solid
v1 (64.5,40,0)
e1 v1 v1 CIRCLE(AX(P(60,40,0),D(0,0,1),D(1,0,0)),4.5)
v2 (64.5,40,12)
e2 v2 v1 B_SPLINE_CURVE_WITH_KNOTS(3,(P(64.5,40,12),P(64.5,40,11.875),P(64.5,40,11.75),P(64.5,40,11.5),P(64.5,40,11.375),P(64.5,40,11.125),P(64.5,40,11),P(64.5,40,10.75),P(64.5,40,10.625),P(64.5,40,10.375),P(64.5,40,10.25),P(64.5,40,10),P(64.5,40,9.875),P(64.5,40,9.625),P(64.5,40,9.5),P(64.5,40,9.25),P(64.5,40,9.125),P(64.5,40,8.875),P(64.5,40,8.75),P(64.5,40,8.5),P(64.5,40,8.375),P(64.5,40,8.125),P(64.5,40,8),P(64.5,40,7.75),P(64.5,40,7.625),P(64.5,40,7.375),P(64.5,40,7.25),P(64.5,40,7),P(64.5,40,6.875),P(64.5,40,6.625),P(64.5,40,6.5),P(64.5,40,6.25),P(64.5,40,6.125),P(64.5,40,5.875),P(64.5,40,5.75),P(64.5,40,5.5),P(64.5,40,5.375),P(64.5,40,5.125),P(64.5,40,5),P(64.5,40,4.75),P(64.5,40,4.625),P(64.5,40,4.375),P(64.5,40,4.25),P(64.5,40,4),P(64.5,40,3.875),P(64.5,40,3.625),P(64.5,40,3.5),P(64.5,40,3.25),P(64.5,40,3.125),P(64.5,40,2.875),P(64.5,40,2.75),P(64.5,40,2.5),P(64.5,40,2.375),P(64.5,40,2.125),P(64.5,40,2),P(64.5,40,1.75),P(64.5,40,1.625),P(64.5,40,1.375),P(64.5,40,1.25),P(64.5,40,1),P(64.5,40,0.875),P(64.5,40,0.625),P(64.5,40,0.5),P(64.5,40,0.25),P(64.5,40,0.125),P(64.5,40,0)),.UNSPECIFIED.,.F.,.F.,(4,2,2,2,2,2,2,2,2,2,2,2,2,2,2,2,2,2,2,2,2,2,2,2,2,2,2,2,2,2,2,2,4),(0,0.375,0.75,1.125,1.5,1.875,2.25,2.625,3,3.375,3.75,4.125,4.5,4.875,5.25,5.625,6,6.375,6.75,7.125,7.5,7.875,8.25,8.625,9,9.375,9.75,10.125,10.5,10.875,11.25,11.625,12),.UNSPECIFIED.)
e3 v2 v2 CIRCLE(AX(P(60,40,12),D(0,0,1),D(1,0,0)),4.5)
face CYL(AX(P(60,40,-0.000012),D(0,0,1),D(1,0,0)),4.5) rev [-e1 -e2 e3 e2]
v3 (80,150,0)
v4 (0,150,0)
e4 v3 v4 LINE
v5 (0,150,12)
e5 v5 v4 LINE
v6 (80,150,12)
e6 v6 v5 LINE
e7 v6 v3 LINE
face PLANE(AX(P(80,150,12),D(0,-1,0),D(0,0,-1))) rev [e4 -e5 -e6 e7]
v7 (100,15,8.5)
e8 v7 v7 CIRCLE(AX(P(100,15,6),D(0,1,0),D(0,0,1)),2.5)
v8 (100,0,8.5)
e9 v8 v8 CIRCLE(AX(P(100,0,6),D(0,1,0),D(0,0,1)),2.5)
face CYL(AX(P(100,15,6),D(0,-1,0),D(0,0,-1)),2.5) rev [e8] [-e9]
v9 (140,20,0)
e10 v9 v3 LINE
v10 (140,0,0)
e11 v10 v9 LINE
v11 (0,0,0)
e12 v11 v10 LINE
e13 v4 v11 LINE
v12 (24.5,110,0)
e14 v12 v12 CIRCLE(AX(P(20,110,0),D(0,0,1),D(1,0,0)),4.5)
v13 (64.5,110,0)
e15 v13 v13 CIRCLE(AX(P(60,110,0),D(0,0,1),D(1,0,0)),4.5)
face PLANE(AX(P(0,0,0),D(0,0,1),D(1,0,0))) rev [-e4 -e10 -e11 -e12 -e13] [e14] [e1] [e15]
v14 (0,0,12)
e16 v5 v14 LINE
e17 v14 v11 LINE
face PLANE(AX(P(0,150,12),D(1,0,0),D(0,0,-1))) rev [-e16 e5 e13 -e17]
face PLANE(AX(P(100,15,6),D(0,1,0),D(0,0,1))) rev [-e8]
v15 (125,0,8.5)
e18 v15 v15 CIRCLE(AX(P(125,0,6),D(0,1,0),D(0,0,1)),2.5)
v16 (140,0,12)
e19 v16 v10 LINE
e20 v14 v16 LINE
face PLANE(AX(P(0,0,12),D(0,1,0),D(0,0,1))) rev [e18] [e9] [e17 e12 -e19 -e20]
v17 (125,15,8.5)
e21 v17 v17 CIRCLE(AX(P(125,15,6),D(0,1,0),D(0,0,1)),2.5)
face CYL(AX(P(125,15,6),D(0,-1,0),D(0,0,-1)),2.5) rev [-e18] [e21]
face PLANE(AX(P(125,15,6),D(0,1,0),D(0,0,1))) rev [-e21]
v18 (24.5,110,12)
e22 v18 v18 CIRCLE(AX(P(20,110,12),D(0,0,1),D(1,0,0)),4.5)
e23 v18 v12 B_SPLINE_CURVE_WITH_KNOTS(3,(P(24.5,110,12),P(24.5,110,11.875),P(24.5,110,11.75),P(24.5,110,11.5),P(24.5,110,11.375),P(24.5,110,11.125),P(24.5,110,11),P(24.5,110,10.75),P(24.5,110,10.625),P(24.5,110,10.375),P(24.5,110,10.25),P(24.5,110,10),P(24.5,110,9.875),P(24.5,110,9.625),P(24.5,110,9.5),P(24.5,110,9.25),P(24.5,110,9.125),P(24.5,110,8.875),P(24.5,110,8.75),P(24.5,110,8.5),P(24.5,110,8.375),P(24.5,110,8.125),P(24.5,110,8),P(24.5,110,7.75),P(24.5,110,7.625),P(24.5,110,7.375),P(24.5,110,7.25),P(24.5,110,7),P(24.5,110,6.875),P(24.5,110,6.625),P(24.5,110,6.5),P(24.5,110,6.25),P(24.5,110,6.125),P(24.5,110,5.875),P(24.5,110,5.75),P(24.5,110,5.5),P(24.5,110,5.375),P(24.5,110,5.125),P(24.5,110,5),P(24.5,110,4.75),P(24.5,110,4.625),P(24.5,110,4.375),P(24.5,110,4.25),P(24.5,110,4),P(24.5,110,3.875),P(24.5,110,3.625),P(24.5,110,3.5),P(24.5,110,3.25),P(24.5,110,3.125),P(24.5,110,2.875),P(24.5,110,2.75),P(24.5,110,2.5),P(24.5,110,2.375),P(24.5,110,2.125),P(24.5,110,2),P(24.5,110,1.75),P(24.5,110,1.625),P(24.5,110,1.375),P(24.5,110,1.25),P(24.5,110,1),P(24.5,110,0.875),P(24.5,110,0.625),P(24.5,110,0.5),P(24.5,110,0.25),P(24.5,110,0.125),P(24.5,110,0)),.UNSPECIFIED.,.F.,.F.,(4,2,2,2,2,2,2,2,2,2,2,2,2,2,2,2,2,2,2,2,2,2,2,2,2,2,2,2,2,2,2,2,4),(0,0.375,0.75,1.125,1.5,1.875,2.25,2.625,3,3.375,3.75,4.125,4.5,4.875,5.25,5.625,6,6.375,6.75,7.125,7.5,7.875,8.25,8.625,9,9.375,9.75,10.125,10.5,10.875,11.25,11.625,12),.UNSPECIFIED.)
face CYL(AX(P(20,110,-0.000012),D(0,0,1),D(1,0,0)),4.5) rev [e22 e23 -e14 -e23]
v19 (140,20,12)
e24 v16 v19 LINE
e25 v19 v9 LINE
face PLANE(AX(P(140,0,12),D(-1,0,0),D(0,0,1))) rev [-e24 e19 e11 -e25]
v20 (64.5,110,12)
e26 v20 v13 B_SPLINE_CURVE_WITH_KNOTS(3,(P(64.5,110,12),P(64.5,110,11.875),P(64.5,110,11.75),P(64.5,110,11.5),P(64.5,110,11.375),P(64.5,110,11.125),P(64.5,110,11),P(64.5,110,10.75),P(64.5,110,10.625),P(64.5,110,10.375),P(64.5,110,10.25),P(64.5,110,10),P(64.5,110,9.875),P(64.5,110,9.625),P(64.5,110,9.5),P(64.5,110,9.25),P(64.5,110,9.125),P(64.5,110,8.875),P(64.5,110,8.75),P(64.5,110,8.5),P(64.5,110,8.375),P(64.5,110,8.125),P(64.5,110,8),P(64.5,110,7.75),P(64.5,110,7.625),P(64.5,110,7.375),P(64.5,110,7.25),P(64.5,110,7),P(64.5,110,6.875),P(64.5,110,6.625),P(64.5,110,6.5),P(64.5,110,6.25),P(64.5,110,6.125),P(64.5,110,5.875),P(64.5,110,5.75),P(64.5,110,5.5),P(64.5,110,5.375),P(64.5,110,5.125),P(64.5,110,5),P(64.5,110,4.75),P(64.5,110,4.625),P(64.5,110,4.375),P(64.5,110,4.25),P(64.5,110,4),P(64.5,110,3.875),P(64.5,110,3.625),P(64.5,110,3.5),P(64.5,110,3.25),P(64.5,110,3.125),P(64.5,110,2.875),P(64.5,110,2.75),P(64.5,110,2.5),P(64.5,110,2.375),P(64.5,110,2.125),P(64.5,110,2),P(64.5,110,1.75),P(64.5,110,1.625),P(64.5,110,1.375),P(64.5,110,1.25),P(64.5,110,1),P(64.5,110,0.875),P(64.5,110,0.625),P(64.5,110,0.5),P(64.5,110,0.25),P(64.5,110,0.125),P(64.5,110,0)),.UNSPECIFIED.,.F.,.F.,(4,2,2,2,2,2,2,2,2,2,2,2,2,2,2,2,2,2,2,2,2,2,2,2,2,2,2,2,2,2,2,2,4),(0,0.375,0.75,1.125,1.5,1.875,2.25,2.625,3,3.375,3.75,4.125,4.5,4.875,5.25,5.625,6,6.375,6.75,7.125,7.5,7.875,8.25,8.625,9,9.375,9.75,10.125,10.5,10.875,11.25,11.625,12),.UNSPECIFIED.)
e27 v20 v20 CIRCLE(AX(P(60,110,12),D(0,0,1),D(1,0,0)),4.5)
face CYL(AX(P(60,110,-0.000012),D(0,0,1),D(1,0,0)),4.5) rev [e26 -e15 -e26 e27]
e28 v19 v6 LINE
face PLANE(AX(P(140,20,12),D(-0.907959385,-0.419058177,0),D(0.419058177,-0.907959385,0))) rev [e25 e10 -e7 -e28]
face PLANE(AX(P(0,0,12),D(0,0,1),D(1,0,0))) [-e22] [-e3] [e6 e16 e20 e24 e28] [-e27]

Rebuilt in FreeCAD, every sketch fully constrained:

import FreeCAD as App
import Part
import Sketcher
Q = App.Units.Quantity


def add_polygon(sketch, points):
    """Adds a closed chain of lines whose ends are joined by coincident constraints."""
    first, n = sketch.GeometryCount, len(points)
    for a, b in zip(points, points[1:] + points[:1]):
        sketch.addGeometry(Part.LineSegment(App.Vector(*a, 0), App.Vector(*b, 0)), False)
    for i in range(n):
        sketch.addConstraint(Sketcher.Constraint("Coincident", first + i, 2, first + (i + 1) % n, 1))

doc = App.newDocument("Part")
params = doc.addObject("Spreadsheet::Sheet", "Params")
for row, (alias, value) in enumerate([
    ("sketch1_width", "140 mm"),
    ("sketch1_width2", "80 mm"),
    ("sketch1_height", "20 mm"),
    ("sketch1_height2", "150 mm"),
    ("pad1_length", "12 mm"),
    ("sketch2_diameter", "9 mm"),
    ("sketch3_diameter", "5 mm"),
    ("pocket2_length", "15 mm"),
], start=1):
    params.set(f"A{row}", alias)
    params.set(f"B{row}", "=" + value)
    params.setAlias(f"B{row}", alias)

body = doc.addObject("PartDesign::Body", "Body")

sketch1 = doc.addObject("Sketcher::SketchObject", "Sketch")
body.addObject(sketch1)
sketch1.AttachmentSupport = (doc.XY_Plane, [""])
sketch1.MapMode = "FlatFace"
add_polygon(sketch1, [(0, 0), (140, 0), (140, 20), (80, 150), (0, 150)])
sketch1.addConstraint(Sketcher.Constraint("Horizontal", 0))
sketch1.addConstraint(Sketcher.Constraint("Vertical", 1))
sketch1.addConstraint(Sketcher.Constraint("Horizontal", 3))
sketch1.addConstraint(Sketcher.Constraint("Vertical", 4))
sketch1.addConstraint(Sketcher.Constraint("Coincident", 4, 2, -1, 1))
sketch1.addConstraint(Sketcher.Constraint("DistanceX", 0, 1, 0, 2, Q("140 mm")))
sketch1.addConstraint(Sketcher.Constraint("DistanceX", 3, 2, 3, 1, Q("80 mm")))
sketch1.addConstraint(Sketcher.Constraint("DistanceY", 1, 1, 1, 2, Q("20 mm")))
sketch1.addConstraint(Sketcher.Constraint("DistanceY", 4, 2, 4, 1, Q("150 mm")))
sketch1.setExpression("Constraints[10]", "Params.sketch1_width")
sketch1.setExpression("Constraints[11]", "Params.sketch1_width2")
sketch1.setExpression("Constraints[12]", "Params.sketch1_height")
sketch1.setExpression("Constraints[13]", "Params.sketch1_height2")
pad1 = doc.addObject("PartDesign::Pad", "Pad")
body.addObject(pad1)
pad1.Profile = sketch1
pad1.setExpression("Length", "Params.pad1_length")

sketch2 = doc.addObject("Sketcher::SketchObject", "Sketch001")
body.addObject(sketch2)
sketch2.AttachmentSupport = (doc.XY_Plane, [""])
sketch2.MapMode = "FlatFace"
sketch2.addGeometry(Part.Circle(App.Vector(20, 110, 0), App.Vector(0, 0, 1), 4.5), False)
sketch2.addGeometry(Part.Circle(App.Vector(60, 110, 0), App.Vector(0, 0, 1), 4.5), False)
sketch2.addGeometry(Part.Circle(App.Vector(60, 40, 0), App.Vector(0, 0, 1), 4.5), False)
sketch2.addConstraint(Sketcher.Constraint("Equal", 0, 1))
sketch2.addConstraint(Sketcher.Constraint("Equal", 1, 2))
sketch2.addConstraint(Sketcher.Constraint("Horizontal", 0, 3, 1, 3))
sketch2.addConstraint(Sketcher.Constraint("Vertical", 1, 3, 2, 3))
sketch2.addConstraint(Sketcher.Constraint("Diameter", 0, Q("9 mm")))
sketch2.addConstraint(Sketcher.Constraint("DistanceX", -1, 1, 0, 3, Q("20 mm")))
sketch2.addConstraint(Sketcher.Constraint("DistanceY", -1, 1, 0, 3, Q("110 mm")))
sketch2.addConstraint(Sketcher.Constraint("DistanceX", -1, 1, 1, 3, Q("60 mm")))
sketch2.addConstraint(Sketcher.Constraint("DistanceY", -1, 1, 2, 3, Q("40 mm")))
sketch2.setExpression("Constraints[4]", "Params.sketch2_diameter")
pocket1 = doc.addObject("PartDesign::Pocket", "Pocket")
body.addObject(pocket1)
pocket1.Profile = sketch2
pocket1.Type = "ThroughAll"
pocket1.Midplane = True

sketch3 = doc.addObject("Sketcher::SketchObject", "Sketch002")
body.addObject(sketch3)
sketch3.AttachmentSupport = (doc.XZ_Plane, [""])
sketch3.MapMode = "FlatFace"
sketch3.addGeometry(Part.Circle(App.Vector(100, 6, 0), App.Vector(0, 0, 1), 2.5), False)
sketch3.addGeometry(Part.Circle(App.Vector(125, 6, 0), App.Vector(0, 0, 1), 2.5), False)
sketch3.addConstraint(Sketcher.Constraint("Equal", 0, 1))
sketch3.addConstraint(Sketcher.Constraint("Horizontal", 0, 3, 1, 3))
sketch3.addConstraint(Sketcher.Constraint("Diameter", 0, Q("5 mm")))
sketch3.addConstraint(Sketcher.Constraint("DistanceX", -1, 1, 0, 3, Q("100 mm")))
sketch3.addConstraint(Sketcher.Constraint("DistanceY", -1, 1, 0, 3, Q("6 mm")))
sketch3.addConstraint(Sketcher.Constraint("DistanceX", -1, 1, 1, 3, Q("125 mm")))
sketch3.setExpression("Constraints[2]", "Params.sketch3_diameter")
pocket2 = doc.addObject("PartDesign::Pocket", "Pocket001")
body.addObject(pocket2)
pocket2.Profile = sketch3
pocket2.setExpression("Length", "Params.pocket2_length")

doc.recompute()
